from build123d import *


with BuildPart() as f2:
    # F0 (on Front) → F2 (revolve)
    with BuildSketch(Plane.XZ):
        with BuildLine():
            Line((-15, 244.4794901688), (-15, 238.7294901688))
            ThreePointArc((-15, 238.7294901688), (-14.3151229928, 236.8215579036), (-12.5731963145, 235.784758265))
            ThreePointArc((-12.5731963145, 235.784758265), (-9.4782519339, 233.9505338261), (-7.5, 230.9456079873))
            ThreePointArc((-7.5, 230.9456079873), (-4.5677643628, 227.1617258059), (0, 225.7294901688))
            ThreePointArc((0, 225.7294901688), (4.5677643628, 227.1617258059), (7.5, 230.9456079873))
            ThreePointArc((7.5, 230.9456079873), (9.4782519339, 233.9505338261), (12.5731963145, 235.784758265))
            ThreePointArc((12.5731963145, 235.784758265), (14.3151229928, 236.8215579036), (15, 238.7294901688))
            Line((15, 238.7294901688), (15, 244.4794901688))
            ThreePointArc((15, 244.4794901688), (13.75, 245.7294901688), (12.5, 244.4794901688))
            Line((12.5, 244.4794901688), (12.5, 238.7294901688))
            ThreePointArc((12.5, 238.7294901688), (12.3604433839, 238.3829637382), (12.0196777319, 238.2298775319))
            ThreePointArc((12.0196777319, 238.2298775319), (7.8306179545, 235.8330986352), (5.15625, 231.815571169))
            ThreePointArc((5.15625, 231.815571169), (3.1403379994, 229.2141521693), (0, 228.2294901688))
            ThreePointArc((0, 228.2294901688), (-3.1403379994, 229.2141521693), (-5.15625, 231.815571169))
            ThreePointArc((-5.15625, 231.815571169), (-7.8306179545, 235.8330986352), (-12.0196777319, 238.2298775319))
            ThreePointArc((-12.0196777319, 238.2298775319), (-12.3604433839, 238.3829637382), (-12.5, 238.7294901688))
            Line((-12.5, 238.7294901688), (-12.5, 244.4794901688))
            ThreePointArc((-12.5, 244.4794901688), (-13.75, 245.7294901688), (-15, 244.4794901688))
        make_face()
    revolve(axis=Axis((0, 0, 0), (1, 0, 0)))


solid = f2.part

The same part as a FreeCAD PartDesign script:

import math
import FreeCAD as App
import Part
import Sketcher

doc = App.newDocument("Part")
body = doc.addObject("PartDesign::Body", "Body")

# Sketch on XZ plane
sketch1 = body.newObject("Sketcher::SketchObject", "Sketch")
sketch1.AttachmentSupport = (doc.getObject("XZ_Plane"), [""])
sketch1.MapMode = "FlatFace"
sketch1.addGeometry([
    Part.LineSegment(App.Vector(-15, 244.47949, 0), App.Vector(-15, 238.72949, 0)),  # 0
    Part.ArcOfCircle(Part.Circle(App.Vector(-12, 238.72949, 0), App.Vector(0, 0, 1), 3), math.radians(180), math.radians(258.985032)),  # 1
    Part.ArcOfCircle(Part.Circle(App.Vector(-15, 228.161726, 0), App.Vector(0, 0, 1), 8), math.radians(20.364135), math.radians(72.341049)),  # 2
    Part.ArcOfCircle(Part.Circle(App.Vector(0, 233.72949, 0), App.Vector(0, 0, 1), 8), math.radians(-159.635865), math.radians(-90)),  # 3
    Part.ArcOfCircle(Part.Circle(App.Vector(0, 233.72949, 0), App.Vector(0, 0, 1), 8), math.radians(-90), math.radians(-20.364135)),  # 4
    Part.ArcOfCircle(Part.Circle(App.Vector(15, 228.161726, 0), App.Vector(0, 0, 1), 8), math.radians(107.658951), math.radians(159.635865)),  # 5
    Part.ArcOfCircle(Part.Circle(App.Vector(12, 238.72949, 0), App.Vector(0, 0, 1), 3), math.radians(-78.985032), math.radians(0)),  # 6
    Part.LineSegment(App.Vector(15, 238.72949, 0), App.Vector(15, 244.47949, 0)),  # 7
    Part.ArcOfCircle(Part.Circle(App.Vector(13.75, 244.47949, 0), App.Vector(0, 0, 1), 1.25), math.radians(0), math.radians(180)),  # 8
    Part.LineSegment(App.Vector(12.5, 244.47949, 0), App.Vector(12.5, 238.72949, 0)),  # 9
    Part.ArcOfCircle(Part.Circle(App.Vector(12, 238.72949, 0), App.Vector(0, 0, 1), 0.5), math.radians(-87.744516), math.radians(0)),  # 10
    Part.ArcOfCircle(Part.Circle(App.Vector(15, 228.161726, 0), App.Vector(0, 0, 1), 10.5), math.radians(106.489535), math.radians(159.635865)),  # 11
    Part.ArcOfCircle(Part.Circle(App.Vector(0, 233.72949, 0), App.Vector(0, 0, 1), 5.5), math.radians(-90), math.radians(-20.364135)),  # 12
    Part.ArcOfCircle(Part.Circle(App.Vector(0, 233.72949, 0), App.Vector(0, 0, 1), 5.5), math.radians(-159.635865), math.radians(-90)),  # 13
    Part.ArcOfCircle(Part.Circle(App.Vector(-15, 228.161726, 0), App.Vector(0, 0, 1), 10.5), math.radians(20.364135), math.radians(73.510465)),  # 14
    Part.ArcOfCircle(Part.Circle(App.Vector(-12, 238.72949, 0), App.Vector(0, 0, 1), 0.5), math.radians(180), math.radians(267.744516)),  # 15
    Part.LineSegment(App.Vector(-12.5, 238.72949, 0), App.Vector(-12.5, 244.47949, 0)),  # 16
    Part.ArcOfCircle(Part.Circle(App.Vector(-13.75, 244.47949, 0), App.Vector(0, 0, 1), 1.25), math.radians(0), math.radians(180)),  # 17
], False)
sketch1.addConstraint([
    Sketcher.Constraint("Tangent", 0, 2, 1, 1),
    Sketcher.Constraint("Coincident", 1, 2, 2, 2),
    Sketcher.Constraint("Tangent", 2, 1, 3, 1),
    Sketcher.Constraint("Tangent", 3, 2, 4, 1),
    Sketcher.Constraint("Tangent", 4, 2, 5, 2),
    Sketcher.Constraint("Coincident", 5, 1, 6, 1),
    Sketcher.Constraint("Tangent", 6, 2, 7, 1),
    Sketcher.Constraint("Tangent", 7, 2, 8, 1),
    Sketcher.Constraint("Tangent", 8, 2, 9, 1),
    Sketcher.Constraint("Tangent", 9, 2, 10, 2),
    Sketcher.Constraint("Coincident", 10, 1, 11, 1),
    Sketcher.Constraint("Tangent", 11, 2, 12, 2),
    Sketcher.Constraint("Tangent", 12, 1, 13, 2),
    Sketcher.Constraint("Tangent", 13, 1, 14, 1),
    Sketcher.Constraint("Coincident", 14, 2, 15, 2),
    Sketcher.Constraint("Tangent", 15, 1, 16, 1),
    Sketcher.Constraint("Tangent", 16, 2, 17, 1),
    Sketcher.Constraint("Tangent", 17, 2, 0, 1),
    Sketcher.Constraint("Vertical", 0),
    Sketcher.Constraint("Vertical", 7),
    Sketcher.Constraint("Vertical", 9),
    Sketcher.Constraint("Vertical", 16),
    Sketcher.Constraint("Coincident", 10, 3, 6, 3),
    Sketcher.Constraint("Coincident", 11, 3, 5, 3),
    Sketcher.Constraint("Coincident", 12, 3, 3, 3),
    Sketcher.Constraint("Coincident", 14, 3, 2, 3),
    Sketcher.Constraint("Coincident", 15, 3, 1, 3),
    Sketcher.Constraint("Equal", 2, 3),
    Sketcher.Constraint("Equal", 3, 4),
    Sketcher.Constraint("Equal", 4, 5),
    Sketcher.Constraint("Equal", 1, 6),
    Sketcher.Constraint("Equal", 12, 13),
    Sketcher.Constraint("Equal", 10, 15),
    Sketcher.Constraint("Symmetric", 2, 3, 5, 3, -2),
    Sketcher.Constraint("Symmetric", 1, 3, 6, 3, -2),
    Sketcher.Constraint("PointOnObject", 3, 2, -2),
    Sketcher.Constraint("PointOnObject", 12, 1, -2),
    Sketcher.Constraint("Horizontal", 8, 3, 17, 3),
    Sketcher.Constraint("Vertical", 14, 3, 0, 2),
    Sketcher.Constraint("Radius", 1, 3.0),
    Sketcher.Constraint("Radius", 2, 8.0),
    Sketcher.Constraint("Radius", 10, 0.5),
    Sketcher.Constraint("Radius", 11, 10.5),
    Sketcher.Constraint("DistanceX", 1, 3, -1, 1, 12.0),
    Sketcher.Constraint("DistanceY", 3, 3, 1, 3, 5.0),
    Sketcher.Constraint("DistanceY", 0, 2, 0, 1, 5.75),
    Sketcher.Constraint("DistanceY", -1, 1, 1, 3, 238.72949),
])
revolution = body.newObject("PartDesign::Revolution", "Revolution")
revolution.Profile = sketch1
revolution.ReferenceAxis = (sketch1, ["H_Axis"])
revolution.Angle = 360

doc.recompute()
